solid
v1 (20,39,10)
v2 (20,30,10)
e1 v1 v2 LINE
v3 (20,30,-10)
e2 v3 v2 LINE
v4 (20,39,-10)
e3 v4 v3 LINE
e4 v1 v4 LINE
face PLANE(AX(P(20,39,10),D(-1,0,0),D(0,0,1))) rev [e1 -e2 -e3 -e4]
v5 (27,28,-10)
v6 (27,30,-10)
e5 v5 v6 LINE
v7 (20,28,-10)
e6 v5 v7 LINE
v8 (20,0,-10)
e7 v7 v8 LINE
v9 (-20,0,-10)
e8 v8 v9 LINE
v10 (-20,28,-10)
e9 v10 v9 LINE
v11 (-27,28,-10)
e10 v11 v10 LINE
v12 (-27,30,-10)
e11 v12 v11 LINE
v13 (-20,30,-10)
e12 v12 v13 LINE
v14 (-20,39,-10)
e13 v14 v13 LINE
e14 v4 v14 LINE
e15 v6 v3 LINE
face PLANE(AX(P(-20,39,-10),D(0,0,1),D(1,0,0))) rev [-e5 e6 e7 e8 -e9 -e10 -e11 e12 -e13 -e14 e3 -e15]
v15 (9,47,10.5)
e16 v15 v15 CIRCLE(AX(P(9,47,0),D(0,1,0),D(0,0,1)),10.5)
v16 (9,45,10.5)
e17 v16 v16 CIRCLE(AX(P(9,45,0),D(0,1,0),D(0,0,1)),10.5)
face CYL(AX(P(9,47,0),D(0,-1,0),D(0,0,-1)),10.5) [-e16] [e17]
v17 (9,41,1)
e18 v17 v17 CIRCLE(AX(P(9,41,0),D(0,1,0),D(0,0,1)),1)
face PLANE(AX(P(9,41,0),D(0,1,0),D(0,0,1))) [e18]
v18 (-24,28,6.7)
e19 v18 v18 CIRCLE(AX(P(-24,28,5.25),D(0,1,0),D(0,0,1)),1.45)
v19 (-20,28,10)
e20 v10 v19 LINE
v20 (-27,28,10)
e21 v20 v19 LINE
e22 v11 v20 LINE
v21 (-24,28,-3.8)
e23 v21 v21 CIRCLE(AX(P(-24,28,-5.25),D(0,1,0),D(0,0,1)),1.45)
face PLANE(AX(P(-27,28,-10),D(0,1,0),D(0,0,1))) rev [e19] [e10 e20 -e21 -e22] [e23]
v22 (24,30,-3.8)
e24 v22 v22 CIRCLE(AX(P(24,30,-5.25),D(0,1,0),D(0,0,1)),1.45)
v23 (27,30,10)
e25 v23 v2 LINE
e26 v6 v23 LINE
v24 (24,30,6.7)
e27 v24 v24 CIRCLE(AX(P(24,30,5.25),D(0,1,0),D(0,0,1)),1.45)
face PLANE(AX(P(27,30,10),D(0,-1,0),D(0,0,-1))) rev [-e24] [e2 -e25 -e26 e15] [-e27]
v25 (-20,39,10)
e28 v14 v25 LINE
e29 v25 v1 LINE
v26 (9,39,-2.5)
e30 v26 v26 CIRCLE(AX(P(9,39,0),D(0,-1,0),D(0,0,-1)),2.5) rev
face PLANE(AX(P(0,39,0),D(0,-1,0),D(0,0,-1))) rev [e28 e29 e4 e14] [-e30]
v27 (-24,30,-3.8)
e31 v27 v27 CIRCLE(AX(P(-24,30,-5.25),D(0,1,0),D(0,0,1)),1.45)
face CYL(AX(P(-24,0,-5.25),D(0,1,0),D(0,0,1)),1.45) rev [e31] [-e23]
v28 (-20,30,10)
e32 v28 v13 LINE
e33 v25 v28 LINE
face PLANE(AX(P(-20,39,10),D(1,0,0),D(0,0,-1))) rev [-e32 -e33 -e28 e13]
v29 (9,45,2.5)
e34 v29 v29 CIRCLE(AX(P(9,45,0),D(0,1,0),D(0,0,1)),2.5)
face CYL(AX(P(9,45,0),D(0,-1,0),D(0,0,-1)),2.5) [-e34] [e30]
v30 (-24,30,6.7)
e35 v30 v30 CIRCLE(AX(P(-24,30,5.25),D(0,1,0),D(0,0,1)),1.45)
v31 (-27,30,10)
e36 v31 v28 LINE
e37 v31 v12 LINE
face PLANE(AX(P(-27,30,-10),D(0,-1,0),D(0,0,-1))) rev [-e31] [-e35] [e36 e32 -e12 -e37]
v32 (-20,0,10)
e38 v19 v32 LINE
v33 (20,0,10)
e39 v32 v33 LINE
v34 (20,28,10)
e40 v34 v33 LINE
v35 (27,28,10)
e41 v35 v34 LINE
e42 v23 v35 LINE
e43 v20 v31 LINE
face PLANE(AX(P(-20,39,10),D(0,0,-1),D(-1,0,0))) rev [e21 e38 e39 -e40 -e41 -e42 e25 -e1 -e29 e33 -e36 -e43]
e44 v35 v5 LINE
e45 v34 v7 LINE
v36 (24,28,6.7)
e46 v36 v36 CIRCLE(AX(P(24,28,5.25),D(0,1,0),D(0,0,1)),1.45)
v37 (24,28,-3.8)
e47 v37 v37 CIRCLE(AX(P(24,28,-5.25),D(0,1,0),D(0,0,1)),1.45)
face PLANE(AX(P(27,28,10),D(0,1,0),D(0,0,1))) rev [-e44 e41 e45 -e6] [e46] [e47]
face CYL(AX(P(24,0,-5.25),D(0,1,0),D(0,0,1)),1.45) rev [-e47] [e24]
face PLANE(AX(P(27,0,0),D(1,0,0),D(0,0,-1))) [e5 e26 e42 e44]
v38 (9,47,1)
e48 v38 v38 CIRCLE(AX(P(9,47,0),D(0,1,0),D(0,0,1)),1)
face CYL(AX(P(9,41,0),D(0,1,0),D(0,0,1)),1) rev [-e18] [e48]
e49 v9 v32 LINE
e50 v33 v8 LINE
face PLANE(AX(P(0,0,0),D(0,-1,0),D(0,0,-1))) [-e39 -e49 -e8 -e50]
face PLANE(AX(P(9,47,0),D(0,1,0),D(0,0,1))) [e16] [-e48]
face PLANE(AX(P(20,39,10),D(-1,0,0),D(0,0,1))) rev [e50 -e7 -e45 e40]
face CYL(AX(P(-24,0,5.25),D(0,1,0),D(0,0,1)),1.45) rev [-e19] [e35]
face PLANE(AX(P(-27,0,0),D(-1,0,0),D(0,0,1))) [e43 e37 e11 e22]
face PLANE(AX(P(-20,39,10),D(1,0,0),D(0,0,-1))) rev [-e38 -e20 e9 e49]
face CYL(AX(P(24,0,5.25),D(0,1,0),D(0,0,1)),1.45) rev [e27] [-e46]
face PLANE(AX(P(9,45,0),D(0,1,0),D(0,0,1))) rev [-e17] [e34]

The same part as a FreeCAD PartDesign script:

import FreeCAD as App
import Part
import Sketcher


def add_polygon(sketch, points):
    """Adds a closed chain of lines whose ends are joined by coincident constraints."""
    first, n = sketch.GeometryCount, len(points)
    for a, b in zip(points, points[1:] + points[:1]):
        sketch.addGeometry(Part.LineSegment(App.Vector(*a, 0), App.Vector(*b, 0)), False)
    for i in range(n):
        sketch.addConstraint(Sketcher.Constraint("Coincident", first + i, 2, first + (i + 1) % n, 1))

doc = App.newDocument("Part")
body = doc.addObject("PartDesign::Body", "Body")

sketch1 = doc.addObject("Sketcher::SketchObject", "Sketch")
body.addObject(sketch1)
sketch1.AttachmentSupport = (doc.XZ_Plane, [""])
sketch1.MapMode = "FlatFace"
add_polygon(sketch1, [(-20, -10), (-20, 10), (20, 10), (20, -10)])
sketch1.addConstraint(Sketcher.Constraint("Vertical", 0))
sketch1.addConstraint(Sketcher.Constraint("Horizontal", 1))
sketch1.addConstraint(Sketcher.Constraint("Vertical", 2))
sketch1.addConstraint(Sketcher.Constraint("Horizontal", 3))
sketch1.addConstraint(Sketcher.Constraint("Symmetric", 0, 2, 2, 2, -1, 1))
sketch1.addConstraint(Sketcher.Constraint("DistanceX", 1, 1, 1, 2, 40.0))
sketch1.addConstraint(Sketcher.Constraint("DistanceY", 0, 1, 0, 2, 20.0))
pad1 = doc.addObject("PartDesign::Pad", "Pad")
body.addObject(pad1)
pad1.Profile = sketch1
pad1.Length = 39
pad1.Reversed = True

sketch2 = doc.addObject("Sketcher::SketchObject", "Sketch001")
body.addObject(sketch2)
sketch2.AttachmentSupport = (doc.YZ_Plane, [""])
sketch2.MapMode = "FlatFace"
sketch2.AttachmentOffset = App.Placement(App.Vector(0, 0, 20), App.Rotation())
add_polygon(sketch2, [(30, 10), (28, 10), (28, -10), (30, -10)])
sketch2.addConstraint(Sketcher.Constraint("Horizontal", 0))
sketch2.addConstraint(Sketcher.Constraint("Vertical", 1))
sketch2.addConstraint(Sketcher.Constraint("Horizontal", 2))
sketch2.addConstraint(Sketcher.Constraint("Vertical", 3))
sketch2.addConstraint(Sketcher.Constraint("DistanceX", 0, 2, 0, 1, 2.0))
sketch2.addConstraint(Sketcher.Constraint("DistanceY", 1, 2, 1, 1, 20.0))
sketch2.addConstraint(Sketcher.Constraint("DistanceX", -1, 1, 0, 2, 28.0))
sketch2.addConstraint(Sketcher.Constraint("DistanceY", -1, 1, 0, 2, 10.0))
pad2 = doc.addObject("PartDesign::Pad", "Pad001")
body.addObject(pad2)
pad2.Profile = sketch2
pad2.Length = 7

sketch3 = doc.addObject("Sketcher::SketchObject", "Sketch002")
body.addObject(sketch3)
sketch3.AttachmentSupport = (doc.YZ_Plane, [""])
sketch3.MapMode = "FlatFace"
sketch3.AttachmentOffset = App.Placement(App.Vector(0, 0, -20), App.Rotation())
add_polygon(sketch3, [(30, -10), (28, -10), (28, 10), (30, 10)])
sketch3.addConstraint(Sketcher.Constraint("Horizontal", 0))
sketch3.addConstraint(Sketcher.Constraint("Vertical", 1))
sketch3.addConstraint(Sketcher.Constraint("Horizontal", 2))
sketch3.addConstraint(Sketcher.Constraint("Vertical", 3))
sketch3.addConstraint(Sketcher.Constraint("DistanceX", 0, 2, 0, 1, 2.0))
sketch3.addConstraint(Sketcher.Constraint("DistanceY", 1, 1, 1, 2, 20.0))
sketch3.addConstraint(Sketcher.Constraint("DistanceX", -1, 1, 0, 2, 28.0))
sketch3.addConstraint(Sketcher.Constraint("DistanceY", 0, 2, -1, 1, 10.0))
pad3 = doc.addObject("PartDesign::Pad", "Pad002")
body.addObject(pad3)
pad3.Profile = sketch3
pad3.Length = 7
pad3.Reversed = True

sketch4 = doc.addObject("Sketcher::SketchObject", "Sketch003")
body.addObject(sketch4)
sketch4.AttachmentSupport = (doc.XZ_Plane, [""])
sketch4.MapMode = "FlatFace"
sketch4.AttachmentOffset = App.Placement(App.Vector(0, 0, -30), App.Rotation())
sketch4.addGeometry(Part.Circle(App.Vector(24, -5.2, 0), App.Vector(0, 0, 1), 1.4), False)
sketch4.addGeometry(Part.Circle(App.Vector(24, 5.2, 0), App.Vector(0, 0, 1), 1.4), False)
sketch4.addGeometry(Part.Circle(App.Vector(-24, -5.2, 0), App.Vector(0, 0, 1), 1.4), False)
sketch4.addGeometry(Part.Circle(App.Vector(-24, 5.2, 0), App.Vector(0, 0, 1), 1.4), False)
sketch4.addConstraint(Sketcher.Constraint("Equal", 0, 1))
sketch4.addConstraint(Sketcher.Constraint("Equal", 1, 2))
sketch4.addConstraint(Sketcher.Constraint("Equal", 2, 3))
sketch4.addConstraint(Sketcher.Constraint("Symmetric", 1, 3, 2, 3, -1, 1))
sketch4.addConstraint(Sketcher.Constraint("Symmetric", 0, 3, 3, 3, -1, 1))
sketch4.addConstraint(Sketcher.Constraint("Symmetric", 0, 3, 2, 3, -2))
sketch4.addConstraint(Sketcher.Constraint("Diameter", 0, 2.9))
sketch4.addConstraint(Sketcher.Constraint("DistanceX", -1, 1, 0, 3, 24.0))
sketch4.addConstraint(Sketcher.Constraint("DistanceY", 0, 3, 1, 3, 10.5))
pocket1 = doc.addObject("PartDesign::Pocket", "Pocket")
body.addObject(pocket1)
pocket1.Profile = sketch4
pocket1.Type = "ThroughAll"
pocket1.Reversed = True

sketch5 = doc.addObject("Sketcher::SketchObject", "Sketch004")
body.addObject(sketch5)
sketch5.AttachmentSupport = (doc.XZ_Plane, [""])
sketch5.MapMode = "FlatFace"
sketch5.AttachmentOffset = App.Placement(App.Vector(0, 0, -39), App.Rotation())
sketch5.addGeometry(Part.Circle(App.Vector(9, 0, 0), App.Vector(0, 0, 1), 2.5), False)
sketch5.addConstraint(Sketcher.Constraint("PointOnObject", 0, 3, -1))
sketch5.addConstraint(Sketcher.Constraint("Diameter", 0, 5.0))
sketch5.addConstraint(Sketcher.Constraint("DistanceX", -1, 1, 0, 3, 9.0))
pad4 = doc.addObject("PartDesign::Pad", "Pad003")
body.addObject(pad4)
pad4.Profile = sketch5
pad4.Length = 6
pad4.Reversed = True

sketch6 = doc.addObject("Sketcher::SketchObject", "Sketch005")
body.addObject(sketch6)
sketch6.AttachmentSupport = (doc.XZ_Plane, [""])
sketch6.MapMode = "FlatFace"
sketch6.AttachmentOffset = App.Placement(App.Vector(0, 0, -45), App.Rotation())
sketch6.addGeometry(Part.Circle(App.Vector(9, 0, 0), App.Vector(0, 0, 1), 10), False)
sketch6.addConstraint(Sketcher.Constraint("PointOnObject", 0, 3, -1))
sketch6.addConstraint(Sketcher.Constraint("Diameter", 0, 21.0))
sketch6.addConstraint(Sketcher.Constraint("DistanceX", -1, 1, 0, 3, 9.0))
pad5 = doc.addObject("PartDesign::Pad", "Pad004")
body.addObject(pad5)
pad5.Profile = sketch6
pad5.Length = 2
pad5.Reversed = True

sketch7 = doc.addObject("Sketcher::SketchObject", "Sketch006")
body.addObject(sketch7)
sketch7.AttachmentSupport = (doc.XZ_Plane, [""])
sketch7.MapMode = "FlatFace"
sketch7.AttachmentOffset = App.Placement(App.Vector(0, 0, -47), App.Rotation())
sketch7.addGeometry(Part.Circle(App.Vector(9, 0, 0), App.Vector(0, 0, 1), 1), False)
sketch7.addConstraint(Sketcher.Constraint("PointOnObject", 0, 3, -1))
sketch7.addConstraint(Sketcher.Constraint("Diameter", 0, 2.0))
sketch7.addConstraint(Sketcher.Constraint("DistanceX", -1, 1, 0, 3, 9.0))
pocket2 = doc.addObject("PartDesign::Pocket", "Pocket001")
body.addObject(pocket2)
pocket2.Profile = sketch7
pocket2.Length = 6
pocket2.Reversed = True

doc.recompute()
